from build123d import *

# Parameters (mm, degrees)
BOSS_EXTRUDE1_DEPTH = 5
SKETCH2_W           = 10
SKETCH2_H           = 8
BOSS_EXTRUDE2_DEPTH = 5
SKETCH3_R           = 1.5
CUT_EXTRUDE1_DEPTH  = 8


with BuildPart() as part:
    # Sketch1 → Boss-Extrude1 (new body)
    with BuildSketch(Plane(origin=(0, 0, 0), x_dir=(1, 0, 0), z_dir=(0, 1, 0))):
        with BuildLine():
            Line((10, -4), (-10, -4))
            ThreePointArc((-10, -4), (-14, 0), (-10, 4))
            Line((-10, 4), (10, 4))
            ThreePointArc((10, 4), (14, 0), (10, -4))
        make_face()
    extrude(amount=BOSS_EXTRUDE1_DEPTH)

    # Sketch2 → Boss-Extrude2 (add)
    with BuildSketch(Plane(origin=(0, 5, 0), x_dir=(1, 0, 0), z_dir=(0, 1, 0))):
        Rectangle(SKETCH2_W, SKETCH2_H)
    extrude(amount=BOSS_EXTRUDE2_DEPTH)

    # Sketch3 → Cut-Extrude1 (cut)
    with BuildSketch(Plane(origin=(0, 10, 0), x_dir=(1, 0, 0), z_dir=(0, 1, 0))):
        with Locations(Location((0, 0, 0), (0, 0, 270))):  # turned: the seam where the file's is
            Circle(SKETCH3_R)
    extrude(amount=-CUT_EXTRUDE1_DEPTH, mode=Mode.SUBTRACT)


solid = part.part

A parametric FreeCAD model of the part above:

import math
import FreeCAD as App
import Part
import Sketcher
from FreeCAD import Vector


def add_polygon(sketch, points):
    """Adds a closed chain of lines whose ends are joined by coincident constraints."""
    first, n = sketch.GeometryCount, len(points)
    for a, b in zip(points, points[1:] + points[:1]):
        sketch.addGeometry(Part.LineSegment(App.Vector(*a, 0), App.Vector(*b, 0)), False)
    for i in range(n):
        sketch.addConstraint(Sketcher.Constraint("Coincident", first + i, 2, first + (i + 1) % n, 1))

doc = App.newDocument("Part")
body = doc.addObject("PartDesign::Body", "Body")

sketch1 = doc.addObject("Sketcher::SketchObject", "Sketch")
body.addObject(sketch1)
sketch1.AttachmentSupport = (doc.XZ_Plane, [""])
sketch1.MapMode = "FlatFace"
sketch1.addGeometry(Part.LineSegment(Vector(-10, 4, 0), Vector(10, 4, 0)), False)
sketch1.addGeometry(Part.ArcOfCircle(Part.Circle(Vector(10, 0, 0), Vector(0, 0, 1), 4), math.radians(-90), math.radians(90)), False)
sketch1.addGeometry(Part.LineSegment(Vector(10, -4, 0), Vector(-10, -4, 0)), False)
sketch1.addGeometry(Part.ArcOfCircle(Part.Circle(Vector(-10, 0, 0), Vector(0, 0, 1), 4), math.radians(90), math.radians(270)), False)
sketch1.addConstraint(Sketcher.Constraint("Tangent", 0, 2, 1, 2))
sketch1.addConstraint(Sketcher.Constraint("Tangent", 1, 1, 2, 1))
sketch1.addConstraint(Sketcher.Constraint("Tangent", 2, 2, 3, 2))
sketch1.addConstraint(Sketcher.Constraint("Tangent", 3, 1, 0, 1))
sketch1.addConstraint(Sketcher.Constraint("Horizontal", 0))
sketch1.addConstraint(Sketcher.Constraint("Horizontal", 2))
sketch1.addConstraint(Sketcher.Constraint("Symmetric", 1, 3, 3, 3, -1, 1))
sketch1.addConstraint(Sketcher.Constraint("Radius", 1, 4.0))
sketch1.addConstraint(Sketcher.Constraint("DistanceX", 0, 1, 0, 2, 20.0))
pad1 = doc.addObject("PartDesign::Pad", "Pad")
body.addObject(pad1)
pad1.Profile = sketch1
pad1.Length = 5
pad1.Reversed = True

sketch2 = doc.addObject("Sketcher::SketchObject", "Sketch001")
body.addObject(sketch2)
sketch2.AttachmentSupport = (doc.XZ_Plane, [""])
sketch2.MapMode = "FlatFace"
sketch2.AttachmentOffset = App.Placement(Vector(0, 0, -5), App.Rotation())
add_polygon(sketch2, [(-5, -4), (-5, 4), (5, 4), (5, -4)])
sketch2.addConstraint(Sketcher.Constraint("Vertical", 0))
sketch2.addConstraint(Sketcher.Constraint("Horizontal", 1))
sketch2.addConstraint(Sketcher.Constraint("Vertical", 2))
sketch2.addConstraint(Sketcher.Constraint("Horizontal", 3))
sketch2.addConstraint(Sketcher.Constraint("Symmetric", 0, 2, 2, 2, -1, 1))
sketch2.addConstraint(Sketcher.Constraint("DistanceX", 1, 1, 1, 2, 10.0))
sketch2.addConstraint(Sketcher.Constraint("DistanceY", 0, 1, 0, 2, 8.0))
pad2 = doc.addObject("PartDesign::Pad", "Pad001")
body.addObject(pad2)
pad2.Profile = sketch2
pad2.Length = 5
pad2.Reversed = True

sketch3 = doc.addObject("Sketcher::SketchObject", "Sketch002")
body.addObject(sketch3)
sketch3.AttachmentSupport = (doc.XZ_Plane, [""])
sketch3.MapMode = "FlatFace"
sketch3.AttachmentOffset = App.Placement(Vector(0, 0, -10), App.Rotation())
sketch3.addGeometry(Part.Circle(Vector(0, 0, 0), Vector(0, 0, 1), 1.5), False)
sketch3.addConstraint(Sketcher.Constraint("Coincident", 0, 3, -1, 1))
sketch3.addConstraint(Sketcher.Constraint("Diameter", 0, 3.0))
pocket1 = doc.addObject("PartDesign::Pocket", "Pocket")
body.addObject(pocket1)
pocket1.Profile = sketch3
pocket1.Length = 8
pocket1.Reversed = True

doc.recompute()
